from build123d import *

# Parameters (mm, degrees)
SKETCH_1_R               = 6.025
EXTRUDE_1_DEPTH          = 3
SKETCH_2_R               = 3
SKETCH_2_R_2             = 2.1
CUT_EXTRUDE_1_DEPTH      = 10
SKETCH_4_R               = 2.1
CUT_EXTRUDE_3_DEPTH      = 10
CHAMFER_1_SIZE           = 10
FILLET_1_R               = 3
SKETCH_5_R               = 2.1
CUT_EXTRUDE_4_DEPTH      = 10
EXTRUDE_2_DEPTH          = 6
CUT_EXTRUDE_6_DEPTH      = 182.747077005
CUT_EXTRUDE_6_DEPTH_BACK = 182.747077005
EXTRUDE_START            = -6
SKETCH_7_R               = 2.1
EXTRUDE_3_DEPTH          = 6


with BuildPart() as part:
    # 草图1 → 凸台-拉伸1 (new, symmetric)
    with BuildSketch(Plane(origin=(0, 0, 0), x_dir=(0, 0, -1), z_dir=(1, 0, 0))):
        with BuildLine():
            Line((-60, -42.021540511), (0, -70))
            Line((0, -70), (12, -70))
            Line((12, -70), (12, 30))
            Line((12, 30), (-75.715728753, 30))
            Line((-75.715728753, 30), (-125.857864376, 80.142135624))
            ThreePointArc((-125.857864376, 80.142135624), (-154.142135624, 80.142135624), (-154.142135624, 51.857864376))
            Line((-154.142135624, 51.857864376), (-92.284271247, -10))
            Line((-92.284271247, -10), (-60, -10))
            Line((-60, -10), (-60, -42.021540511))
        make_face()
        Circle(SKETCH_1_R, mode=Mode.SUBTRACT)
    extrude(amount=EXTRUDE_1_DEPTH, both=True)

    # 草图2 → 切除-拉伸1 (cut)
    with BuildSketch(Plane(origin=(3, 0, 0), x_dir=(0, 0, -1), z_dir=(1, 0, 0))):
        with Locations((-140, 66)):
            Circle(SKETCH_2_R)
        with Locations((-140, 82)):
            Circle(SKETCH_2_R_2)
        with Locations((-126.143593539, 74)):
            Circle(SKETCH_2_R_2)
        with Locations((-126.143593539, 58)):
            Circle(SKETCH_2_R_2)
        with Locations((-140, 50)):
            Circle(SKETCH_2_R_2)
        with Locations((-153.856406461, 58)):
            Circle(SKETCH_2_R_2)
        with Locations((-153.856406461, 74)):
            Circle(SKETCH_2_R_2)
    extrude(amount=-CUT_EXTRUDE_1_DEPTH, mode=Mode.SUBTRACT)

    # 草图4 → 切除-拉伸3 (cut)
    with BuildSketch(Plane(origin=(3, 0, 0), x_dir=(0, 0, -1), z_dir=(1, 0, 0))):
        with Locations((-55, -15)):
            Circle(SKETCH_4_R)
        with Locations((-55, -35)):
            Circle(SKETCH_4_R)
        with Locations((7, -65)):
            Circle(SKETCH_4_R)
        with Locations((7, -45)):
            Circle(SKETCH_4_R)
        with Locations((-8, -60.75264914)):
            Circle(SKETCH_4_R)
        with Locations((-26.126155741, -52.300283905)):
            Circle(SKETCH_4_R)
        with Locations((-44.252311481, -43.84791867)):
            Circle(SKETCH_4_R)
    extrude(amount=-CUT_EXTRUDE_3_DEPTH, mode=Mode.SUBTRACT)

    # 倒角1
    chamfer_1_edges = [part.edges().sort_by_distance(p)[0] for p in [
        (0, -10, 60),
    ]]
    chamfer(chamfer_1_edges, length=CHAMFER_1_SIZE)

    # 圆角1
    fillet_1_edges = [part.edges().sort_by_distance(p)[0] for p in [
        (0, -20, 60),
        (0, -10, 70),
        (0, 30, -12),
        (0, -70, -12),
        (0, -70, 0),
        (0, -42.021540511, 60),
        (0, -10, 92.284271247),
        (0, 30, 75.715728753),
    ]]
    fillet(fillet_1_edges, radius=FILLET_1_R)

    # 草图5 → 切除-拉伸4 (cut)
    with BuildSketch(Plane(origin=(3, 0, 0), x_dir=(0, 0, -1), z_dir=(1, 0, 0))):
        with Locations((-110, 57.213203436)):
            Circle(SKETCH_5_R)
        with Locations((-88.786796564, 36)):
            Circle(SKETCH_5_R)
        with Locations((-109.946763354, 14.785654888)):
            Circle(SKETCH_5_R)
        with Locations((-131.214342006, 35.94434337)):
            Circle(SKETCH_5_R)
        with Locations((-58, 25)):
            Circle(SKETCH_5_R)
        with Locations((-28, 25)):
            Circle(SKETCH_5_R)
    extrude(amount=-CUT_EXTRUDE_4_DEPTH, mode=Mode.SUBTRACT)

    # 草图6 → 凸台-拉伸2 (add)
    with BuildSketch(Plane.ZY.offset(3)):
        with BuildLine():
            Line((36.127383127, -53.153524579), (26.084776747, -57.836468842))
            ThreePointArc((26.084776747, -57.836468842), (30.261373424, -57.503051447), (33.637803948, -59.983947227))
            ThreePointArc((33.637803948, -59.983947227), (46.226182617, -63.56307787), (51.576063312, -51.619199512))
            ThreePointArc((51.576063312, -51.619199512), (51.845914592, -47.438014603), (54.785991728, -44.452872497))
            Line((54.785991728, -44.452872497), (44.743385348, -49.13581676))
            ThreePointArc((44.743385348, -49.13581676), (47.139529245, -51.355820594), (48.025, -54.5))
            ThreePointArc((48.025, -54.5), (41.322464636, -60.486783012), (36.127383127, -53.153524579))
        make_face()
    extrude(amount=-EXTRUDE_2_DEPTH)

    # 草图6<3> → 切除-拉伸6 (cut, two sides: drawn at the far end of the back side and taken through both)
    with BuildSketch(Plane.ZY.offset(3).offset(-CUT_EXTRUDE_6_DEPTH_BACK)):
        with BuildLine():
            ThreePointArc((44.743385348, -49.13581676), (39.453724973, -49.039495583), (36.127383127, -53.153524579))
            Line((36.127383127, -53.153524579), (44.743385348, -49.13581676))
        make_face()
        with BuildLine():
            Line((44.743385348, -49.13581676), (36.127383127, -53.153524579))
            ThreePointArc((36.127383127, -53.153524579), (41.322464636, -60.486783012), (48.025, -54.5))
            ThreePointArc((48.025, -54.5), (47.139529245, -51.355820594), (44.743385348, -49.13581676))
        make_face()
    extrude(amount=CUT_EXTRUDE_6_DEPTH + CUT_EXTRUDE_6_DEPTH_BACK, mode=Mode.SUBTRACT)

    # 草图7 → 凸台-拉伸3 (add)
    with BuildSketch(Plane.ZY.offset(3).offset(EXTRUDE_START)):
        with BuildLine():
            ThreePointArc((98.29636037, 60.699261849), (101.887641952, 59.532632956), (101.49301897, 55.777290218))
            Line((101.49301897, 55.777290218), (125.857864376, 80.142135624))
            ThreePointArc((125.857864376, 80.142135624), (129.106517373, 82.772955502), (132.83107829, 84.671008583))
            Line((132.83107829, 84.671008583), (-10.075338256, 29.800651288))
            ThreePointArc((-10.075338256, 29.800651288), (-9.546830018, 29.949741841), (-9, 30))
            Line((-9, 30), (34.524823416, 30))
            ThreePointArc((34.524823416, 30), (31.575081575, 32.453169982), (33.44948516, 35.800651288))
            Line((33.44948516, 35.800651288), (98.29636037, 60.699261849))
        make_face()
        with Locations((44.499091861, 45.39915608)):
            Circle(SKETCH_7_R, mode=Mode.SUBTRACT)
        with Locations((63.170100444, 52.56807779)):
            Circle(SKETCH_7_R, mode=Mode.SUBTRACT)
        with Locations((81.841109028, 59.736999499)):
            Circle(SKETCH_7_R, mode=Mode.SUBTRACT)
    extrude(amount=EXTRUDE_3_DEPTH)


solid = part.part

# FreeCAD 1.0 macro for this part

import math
import FreeCAD as App
import Part
import Sketcher
Q = App.Units.Quantity


def edges_at(feature, points):
    """Names of the edges that pass closest to the given points."""
    edges = feature.Shape.Edges
    near = lambda p: min(range(len(edges)), key=lambda i: edges[i].distToShape(Part.Vertex(*p))[0])
    return sorted({f"Edge{near(p) + 1}" for p in points})

doc = App.newDocument("Part")
body = doc.addObject("PartDesign::Body", "Body")

# Sketch on YZ plane
sketch1 = doc.addObject("Sketcher::SketchObject", "Sketch")
body.addObject(sketch1)
sketch1.AttachmentSupport = (doc.YZ_Plane, [""])
sketch1.MapMode = "FlatFace"
sketch1.addGeometry([
    Part.LineSegment(App.Vector(-42.021541, 60, 0), App.Vector(-70, 0, 0)),  # 0
    Part.LineSegment(App.Vector(-70, 0, 0), App.Vector(-70, -12, 0)),  # 1
    Part.LineSegment(App.Vector(-70, -12, 0), App.Vector(30, -12, 0)),  # 2
    Part.LineSegment(App.Vector(30, -12, 0), App.Vector(30, 75.715729, 0)),  # 3
    Part.LineSegment(App.Vector(30, 75.715729, 0), App.Vector(80.142136, 125.857864, 0)),  # 4
    Part.ArcOfCircle(Part.Circle(App.Vector(66, 140, 0), App.Vector(0, 0, 1), 20), math.radians(-45), math.radians(135)),  # 5
    Part.LineSegment(App.Vector(51.857864, 154.142136, 0), App.Vector(-10, 92.284271, 0)),  # 6
    Part.LineSegment(App.Vector(-10, 92.284271, 0), App.Vector(-10, 60, 0)),  # 7
    Part.LineSegment(App.Vector(-10, 60, 0), App.Vector(-42.021541, 60, 0)),  # 8
    Part.Circle(App.Vector(0, 0, 0), App.Vector(0, 0, 1), 6.025),  # 9
], False)
sketch1.addConstraint([
    Sketcher.Constraint("Coincident", 0, 2, 1, 1),
    Sketcher.Constraint("Coincident", 1, 2, 2, 1),
    Sketcher.Constraint("Coincident", 2, 2, 3, 1),
    Sketcher.Constraint("Coincident", 3, 2, 4, 1),
    Sketcher.Constraint("Tangent", 4, 2, 5, 1),
    Sketcher.Constraint("Tangent", 5, 2, 6, 1),
    Sketcher.Constraint("Coincident", 6, 2, 7, 1),
    Sketcher.Constraint("Coincident", 7, 2, 8, 1),
    Sketcher.Constraint("Coincident", 8, 2, 0, 1),
    Sketcher.Constraint("Vertical", 1),
    Sketcher.Constraint("Horizontal", 2),
    Sketcher.Constraint("Vertical", 3),
    Sketcher.Constraint("Vertical", 7),
    Sketcher.Constraint("Horizontal", 8),
    Sketcher.Constraint("Coincident", 9, 3, -1, 1),
    Sketcher.Constraint("PointOnObject", 0, 2, -1),
    Sketcher.Constraint("Parallel", 4, 6),
    Sketcher.Constraint("Radius", 5, Q("20 mm")),
    Sketcher.Constraint("Diameter", 9, Q("12.05 mm")),
    Sketcher.Constraint("DistanceX", 2, 1, 2, 2, Q("100 mm")),
    Sketcher.Constraint("DistanceY", 1, 2, 1, 1, Q("12 mm")),
    Sketcher.Constraint("Angle", 0, Q("-115 deg")),
    Sketcher.Constraint("Angle", 4, Q("45 deg")),
    Sketcher.Constraint("DistanceX", -1, 1, 5, 3, Q("66 mm")),
    Sketcher.Constraint("DistanceY", -1, 1, 5, 3, Q("140 mm")),
    Sketcher.Constraint("DistanceX", 0, 2, -1, 1, Q("70 mm")),
    Sketcher.Constraint("DistanceX", 6, 2, -1, 1, Q("10 mm")),
    Sketcher.Constraint("DistanceY", -1, 1, 7, 2, Q("60 mm")),
])
pad1 = doc.addObject("PartDesign::Pad", "Pad")
body.addObject(pad1)
pad1.Profile = sketch1
pad1.Length = 6
pad1.Midplane = True

# Sketch on YZ plane
sketch2 = doc.addObject("Sketcher::SketchObject", "Sketch001")
body.addObject(sketch2)
sketch2.AttachmentSupport = (doc.YZ_Plane, [""])
sketch2.MapMode = "FlatFace"
sketch2.AttachmentOffset = App.Placement(App.Vector(0, 0, 3), App.Rotation())
sketch2.addGeometry([
    Part.Circle(App.Vector(66, 140, 0), App.Vector(0, 0, 1), 3),  # 0
    Part.Circle(App.Vector(82, 140, 0), App.Vector(0, 0, 1), 2.1),  # 1
    Part.Circle(App.Vector(74, 126.143594, 0), App.Vector(0, 0, 1), 2.1),  # 2
    Part.Circle(App.Vector(58, 126.143594, 0), App.Vector(0, 0, 1), 2.1),  # 3
    Part.Circle(App.Vector(50, 140, 0), App.Vector(0, 0, 1), 2.1),  # 4
    Part.Circle(App.Vector(58, 153.856406, 0), App.Vector(0, 0, 1), 2.1),  # 5
    Part.Circle(App.Vector(74, 153.856406, 0), App.Vector(0, 0, 1), 2.1),  # 6
], False)
sketch2.addConstraint([
    Sketcher.Constraint("Equal", 1, 2),
    Sketcher.Constraint("Equal", 2, 3),
    Sketcher.Constraint("Equal", 3, 4),
    Sketcher.Constraint("Equal", 4, 5),
    Sketcher.Constraint("Equal", 5, 6),
    Sketcher.Constraint("Horizontal", 0, 3, 1, 3),
    Sketcher.Constraint("Horizontal", 2, 3, 3, 3),
    Sketcher.Constraint("Horizontal", 1, 3, 4, 3),
    Sketcher.Constraint("Horizontal", 5, 3, 6, 3),
    Sketcher.Constraint("Vertical", 3, 3, 5, 3),
    Sketcher.Constraint("Vertical", 2, 3, 6, 3),
    Sketcher.Constraint("Diameter", 0, Q("6 mm")),
    Sketcher.Constraint("Diameter", 1, Q("4.2 mm")),
    Sketcher.Constraint("DistanceX", -1, 1, 0, 3, Q("66 mm")),
    Sketcher.Constraint("DistanceY", -1, 1, 0, 3, Q("140 mm")),
    Sketcher.Constraint("DistanceX", -1, 1, 1, 3, Q("82 mm")),
    Sketcher.Constraint("DistanceX", -1, 1, 2, 3, Q("74 mm")),
    Sketcher.Constraint("DistanceX", -1, 1, 3, 3, Q("58 mm")),
    Sketcher.Constraint("DistanceX", -1, 1, 4, 3, Q("50 mm")),
    Sketcher.Constraint("DistanceY", -1, 1, 2, 3, Q("126.143594 mm")),
    Sketcher.Constraint("DistanceY", -1, 1, 5, 3, Q("153.856406 mm")),
])
pocket1 = doc.addObject("PartDesign::Pocket", "Pocket")
body.addObject(pocket1)
pocket1.Profile = sketch2
pocket1.Length = 10

# Sketch on YZ plane
sketch3 = doc.addObject("Sketcher::SketchObject", "Sketch002")
body.addObject(sketch3)
sketch3.AttachmentSupport = (doc.YZ_Plane, [""])
sketch3.MapMode = "FlatFace"
sketch3.AttachmentOffset = App.Placement(App.Vector(0, 0, 3), App.Rotation())
sketch3.addGeometry([
    Part.Circle(App.Vector(-15, 55, 0), App.Vector(0, 0, 1), 2.1),  # 0
    Part.Circle(App.Vector(-35, 55, 0), App.Vector(0, 0, 1), 2.1),  # 1
    Part.Circle(App.Vector(-65, -7, 0), App.Vector(0, 0, 1), 2.1),  # 2
    Part.Circle(App.Vector(-45, -7, 0), App.Vector(0, 0, 1), 2.1),  # 3
    Part.Circle(App.Vector(-60.752649, 8, 0), App.Vector(0, 0, 1), 2.1),  # 4
    Part.Circle(App.Vector(-52.300284, 26.126156, 0), App.Vector(0, 0, 1), 2.1),  # 5
    Part.Circle(App.Vector(-43.847919, 44.252311, 0), App.Vector(0, 0, 1), 2.1),  # 6
], False)
sketch3.addConstraint([
    Sketcher.Constraint("Equal", 0, 1),
    Sketcher.Constraint("Equal", 1, 2),
    Sketcher.Constraint("Equal", 2, 3),
    Sketcher.Constraint("Equal", 3, 4),
    Sketcher.Constraint("Equal", 4, 5),
    Sketcher.Constraint("Equal", 5, 6),
    Sketcher.Constraint("Horizontal", 0, 3, 1, 3),
    Sketcher.Constraint("Horizontal", 2, 3, 3, 3),
    Sketcher.Constraint("Diameter", 0, Q("4.2 mm")),
    Sketcher.Constraint("DistanceX", 0, 3, -1, 1, Q("15 mm")),
    Sketcher.Constraint("DistanceY", -1, 1, 0, 3, Q("55 mm")),
    Sketcher.Constraint("DistanceX", 1, 3, -1, 1, Q("35 mm")),
    Sketcher.Constraint("DistanceX", 2, 3, -1, 1, Q("65 mm")),
    Sketcher.Constraint("DistanceY", 2, 3, -1, 1, Q("7 mm")),
    Sketcher.Constraint("DistanceX", 3, 3, -1, 1, Q("45 mm")),
    Sketcher.Constraint("DistanceY", -1, 1, 4, 3, Q("8 mm")),
    Sketcher.Constraint("DistanceX", 4, 3, -1, 1, Q("60.752649 mm")),
    Sketcher.Constraint("DistanceX", 6, 3, -1, 1, Q("43.847919 mm")),
    Sketcher.Constraint("DistanceY", -1, 1, 6, 3, Q("44.252311 mm")),
    Sketcher.Constraint("DistanceX", 5, 3, -1, 1, Q("52.300284 mm")),
    Sketcher.Constraint("DistanceY", -1, 1, 5, 3, Q("26.126156 mm")),
])
pocket2 = doc.addObject("PartDesign::Pocket", "Pocket001")
body.addObject(pocket2)
pocket2.Profile = sketch3
pocket2.Length = 10
doc.recompute()

chamfer = doc.addObject("PartDesign::Chamfer", "Chamfer")
body.addObject(chamfer)
chamfer.Base = (pocket2, edges_at(pocket2, [(0, -10, 60)]))
chamfer.Size = 10
doc.recompute()

fillet = doc.addObject("PartDesign::Fillet", "Fillet")
body.addObject(fillet)
fillet.Base = (chamfer, edges_at(chamfer, [
    (0, -20, 60),
    (0, -10, 70),
    (0, 30, -12),
    (0, -70, -12),
    (0, -70, 0),
    (0, -42.022, 60),
    (0, -10, 92.284),
    (0, 30, 75.716),
]))
fillet.Radius = 3

# Sketch on YZ plane
sketch4 = doc.addObject("Sketcher::SketchObject", "Sketch003")
body.addObject(sketch4)
sketch4.AttachmentSupport = (doc.YZ_Plane, [""])
sketch4.MapMode = "FlatFace"
sketch4.AttachmentOffset = App.Placement(App.Vector(0, 0, 3), App.Rotation())
sketch4.addGeometry([
    Part.Circle(App.Vector(57.213203, 110, 0), App.Vector(0, 0, 1), 2.1),  # 0
    Part.Circle(App.Vector(36, 88.786797, 0), App.Vector(0, 0, 1), 2.1),  # 1
    Part.Circle(App.Vector(14.785655, 109.946763, 0), App.Vector(0, 0, 1), 2.1),  # 2
    Part.Circle(App.Vector(35.944343, 131.214342, 0), App.Vector(0, 0, 1), 2.1),  # 3
    Part.Circle(App.Vector(25, 58, 0), App.Vector(0, 0, 1), 2.1),  # 4
    Part.Circle(App.Vector(25, 28, 0), App.Vector(0, 0, 1), 2.1),  # 5
], False)
sketch4.addConstraint([
    Sketcher.Constraint("Equal", 0, 1),
    Sketcher.Constraint("Equal", 1, 2),
    Sketcher.Constraint("Equal", 2, 3),
    Sketcher.Constraint("Equal", 3, 4),
    Sketcher.Constraint("Equal", 4, 5),
    Sketcher.Constraint("Vertical", 4, 3, 5, 3),
    Sketcher.Constraint("Diameter", 0, Q("4.2 mm")),
    Sketcher.Constraint("DistanceY", -1, 1, 0, 3, Q("110 mm")),
    Sketcher.Constraint("DistanceX", -1, 1, 1, 3, Q("36 mm")),
    Sketcher.Constraint("DistanceX", -1, 1, 4, 3, Q("25 mm")),
    Sketcher.Constraint("DistanceY", -1, 1, 4, 3, Q("58 mm")),
    Sketcher.Constraint("DistanceY", -1, 1, 5, 3, Q("28 mm")),
    Sketcher.Constraint("DistanceX", 2, 3, 0, 3, Q("42.427549 mm")),
    Sketcher.Constraint("DistanceX", 2, 3, 3, 3, Q("21.158688 mm")),
    Sketcher.Constraint("DistanceY", 2, 3, 3, 3, Q("21.267579 mm")),
    Sketcher.Constraint("DistanceX", -1, 1, 0, 3, Q("57.213203 mm")),
    Sketcher.Constraint("DistanceY", -1, 1, 1, 3, Q("88.786797 mm")),
    Sketcher.Constraint("DistanceY", -1, 1, 2, 3, Q("109.946763 mm")),
])
pocket3 = doc.addObject("PartDesign::Pocket", "Pocket002")
body.addObject(pocket3)
pocket3.Profile = sketch4
pocket3.Length = 10

# Sketch on YZ plane
sketch5 = doc.addObject("Sketcher::SketchObject", "Sketch004")
body.addObject(sketch5)
sketch5.AttachmentSupport = (doc.YZ_Plane, [""])
sketch5.MapMode = "FlatFace"
sketch5.AttachmentOffset = App.Placement(App.Vector(0, 0, -3), App.Rotation())
sketch5.addGeometry([
    Part.LineSegment(App.Vector(-53.153525, 36.127383, 0), App.Vector(-57.836469, 26.084777, 0)),  # 0
    Part.ArcOfCircle(Part.Circle(App.Vector(-63.274316, 28.620486, 0), App.Vector(0, 0, 1), 6), math.radians(-25), math.radians(56.743046)),  # 1
    Part.ArcOfCircle(Part.Circle(App.Vector(-54.5, 42, 0), App.Vector(0, 0, 1), 10), math.radians(73.256954), math.radians(236.743046)),  # 2
    Part.ArcOfCircle(Part.Circle(App.Vector(-49.890719, 57.321701, 0), App.Vector(0, 0, 1), 6), math.radians(-106.743046), math.radians(-25)),  # 3
    Part.LineSegment(App.Vector(-44.452872, 54.785992, 0), App.Vector(-49.135817, 44.743385, 0)),  # 4
    Part.ArcOfCircle(Part.Circle(App.Vector(-54.5, 42, 0), App.Vector(0, 0, 1), 6.025), math.radians(27.086405), math.radians(90)),  # 5
    Part.ArcOfCircle(Part.Circle(App.Vector(-54.5, 42, 0), App.Vector(0, 0, 1), 6.025), math.radians(90), math.radians(282.913595)),  # 6
], False)
sketch5.addConstraint([
    Sketcher.Constraint("Tangent", 0, 2, 1, 1),
    Sketcher.Constraint("Tangent", 1, 2, 2, 2),
    Sketcher.Constraint("Tangent", 2, 1, 3, 1),
    Sketcher.Constraint("Tangent", 3, 2, 4, 1),
    Sketcher.Constraint("Coincident", 4, 2, 5, 1),
    Sketcher.Constraint("Tangent", 5, 2, 6, 1),
    Sketcher.Constraint("Coincident", 6, 2, 0, 1),
    Sketcher.Constraint("Coincident", 5, 3, 2, 3),
    Sketcher.Constraint("Equal", 1, 3),
    Sketcher.Constraint("Equal", 5, 6),
    Sketcher.Constraint("Parallel", 0, 4),
    Sketcher.Constraint("Vertical", 6, 3, 5, 2),
    Sketcher.Constraint("Equal", 0, 4),
    Sketcher.Constraint("Radius", 1, Q("6 mm")),
    Sketcher.Constraint("Radius", 2, Q("10 mm")),
    Sketcher.Constraint("Angle", 0, Q("-115 deg")),
    Sketcher.Constraint("DistanceY", -1, 1, 2, 3, Q("42 mm")),
    Sketcher.Constraint("Radius", 5, Q("6.025 mm")),
    Sketcher.Constraint("DistanceX", 2, 3, -1, 1, Q("54.5 mm")),
    Sketcher.Constraint("DistanceY", -1, 1, 3, 3, Q("57.321701 mm")),
])
pad2 = doc.addObject("PartDesign::Pad", "Pad001")
body.addObject(pad2)
pad2.Profile = sketch5
pad2.Length = 6

# Sketch on YZ plane
sketch6 = doc.addObject("Sketcher::SketchObject", "Sketch005")
body.addObject(sketch6)
sketch6.AttachmentSupport = (doc.YZ_Plane, [""])
sketch6.MapMode = "FlatFace"
sketch6.AttachmentOffset = App.Placement(App.Vector(0, 0, -3), App.Rotation())
sketch6.addGeometry([
    Part.ArcOfCircle(Part.Circle(App.Vector(-54.5, 42, 0), App.Vector(0, 0, 1), 6.025), math.radians(-77.086405), math.radians(27.086405)),
    Part.ArcOfCircle(Part.Circle(App.Vector(-54.5, 42, 0), App.Vector(0, 0, 1), 6.025), math.radians(90), math.radians(282.913595)),
    Part.ArcOfCircle(Part.Circle(App.Vector(-54.5, 42, 0), App.Vector(0, 0, 1), 6.025), math.radians(27.086405), math.radians(90)),
], False)
sketch6.addConstraint([
    Sketcher.Constraint("Tangent", 0, 1, 1, 2),
    Sketcher.Constraint("Tangent", 1, 1, 2, 2),
    Sketcher.Constraint("Tangent", 2, 1, 0, 2),
    Sketcher.Constraint("Vertical", 2, 3, 1, 1),
    Sketcher.Constraint("DistanceY", -1, 1, 0, 3, Q("42 mm")),
    Sketcher.Constraint("Radius", 0, Q("6.025 mm")),
    Sketcher.Constraint("DistanceX", 0, 3, -1, 1, Q("54.5 mm")),
    Sketcher.Constraint("DistanceX", 0, 1, -1, 1, Q("53.153525 mm")),
    Sketcher.Constraint("DistanceX", 2, 1, -1, 1, Q("49.135817 mm")),
])
pocket4 = doc.addObject("PartDesign::Pocket", "Pocket003")
body.addObject(pocket4)
pocket4.Profile = sketch6
pocket4.Type = "ThroughAll"
pocket4.Midplane = True

# Sketch on YZ plane
sketch7 = doc.addObject("Sketcher::SketchObject", "Sketch006")
body.addObject(sketch7)
sketch7.AttachmentSupport = (doc.YZ_Plane, [""])
sketch7.MapMode = "FlatFace"
sketch7.AttachmentOffset = App.Placement(App.Vector(0, 0, 3), App.Rotation())
sketch7.addGeometry([
    Part.ArcOfCircle(Part.Circle(App.Vector(57.898611, 99.371699, 0), App.Vector(0, 0, 1), 3), math.radians(-21.004795), math.radians(135)),  # 0
    Part.LineSegment(App.Vector(55.77729, 101.493019, 0), App.Vector(80.142136, 125.857864, 0)),  # 1
    Part.ArcOfCircle(Part.Circle(App.Vector(66, 140, 0), App.Vector(0, 0, 1), 20), math.radians(-45), math.radians(-21.004795)),  # 2
    Part.LineSegment(App.Vector(84.671009, 132.831078, 0), App.Vector(29.800651, -10.075338, 0)),  # 3
    Part.ArcOfCircle(Part.Circle(App.Vector(27, -9, 0), App.Vector(0, 0, 1), 3), math.radians(-21.004795), math.radians(0)),  # 4
    Part.LineSegment(App.Vector(30, -9, 0), App.Vector(30, 34.524823, 0)),  # 5
    Part.ArcOfCircle(Part.Circle(App.Vector(33, 34.524823, 0), App.Vector(0, 0, 1), 3), math.radians(-180), math.radians(-21.004795)),  # 6
    Part.LineSegment(App.Vector(35.800651, 33.449485, 0), App.Vector(60.699262, 98.29636, 0)),  # 7
    Part.Circle(App.Vector(45.399156, 44.499092, 0), App.Vector(0, 0, 1), 2.1),  # 8
    Part.Circle(App.Vector(52.568078, 63.1701, 0), App.Vector(0, 0, 1), 2.1),  # 9
    Part.Circle(App.Vector(59.736999, 81.841109, 0), App.Vector(0, 0, 1), 2.1),  # 10
], False)
sketch7.addConstraint([
    Sketcher.Constraint("Tangent", 0, 2, 1, 1),
    Sketcher.Constraint("Tangent", 1, 2, 2, 1),
    Sketcher.Constraint("Tangent", 2, 2, 3, 1),
    Sketcher.Constraint("Tangent", 3, 2, 4, 1),
    Sketcher.Constraint("Tangent", 4, 2, 5, 1),
    Sketcher.Constraint("Tangent", 5, 2, 6, 1),
    Sketcher.Constraint("Tangent", 6, 2, 7, 1),
    Sketcher.Constraint("Tangent", 7, 2, 0, 1),
    Sketcher.Constraint("Vertical", 5),
    Sketcher.Constraint("Equal", 0, 4),
    Sketcher.Constraint("Equal", 4, 6),
    Sketcher.Constraint("Equal", 8, 9),
    Sketcher.Constraint("Equal", 9, 10),
    Sketcher.Constraint("Parallel", 3, 7),
    Sketcher.Constraint("Radius", 0, Q("3 mm")),
    Sketcher.Constraint("Radius", 2, Q("20 mm")),
    Sketcher.Constraint("Diameter", 8, Q("4.2 mm")),
    Sketcher.Constraint("Angle", 1, Q("45 deg")),
    Sketcher.Constraint("DistanceX", -1, 1, 2, 3, Q("66 mm")),
    Sketcher.Constraint("DistanceY", -1, 1, 2, 3, Q("140 mm")),
    Sketcher.Constraint("DistanceX", -1, 1, 4, 3, Q("27 mm")),
    Sketcher.Constraint("DistanceY", 4, 3, -1, 1, Q("9 mm")),
    Sketcher.Constraint("DistanceX", -1, 1, 10, 3, Q("59.736999 mm")),
    Sketcher.Constraint("DistanceY", -1, 1, 0, 3, Q("99.371699 mm")),
    Sketcher.Constraint("DistanceY", -1, 1, 9, 3, Q("63.1701 mm")),
    Sketcher.Constraint("DistanceY", -1, 1, 8, 3, Q("44.499092 mm")),
    Sketcher.Constraint("DistanceY", -1, 1, 10, 3, Q("81.841109 mm")),
    Sketcher.Constraint("DistanceX", 8, 3, 9, 3, Q("7.168922 mm")),
    Sketcher.Constraint("DistanceX", 9, 3, 10, 3, Q("7.168922 mm")),
])
pad3 = doc.addObject("PartDesign::Pad", "Pad002")
body.addObject(pad3)
pad3.Profile = sketch7
pad3.Length = 6
pad3.Reversed = True

doc.recompute()
